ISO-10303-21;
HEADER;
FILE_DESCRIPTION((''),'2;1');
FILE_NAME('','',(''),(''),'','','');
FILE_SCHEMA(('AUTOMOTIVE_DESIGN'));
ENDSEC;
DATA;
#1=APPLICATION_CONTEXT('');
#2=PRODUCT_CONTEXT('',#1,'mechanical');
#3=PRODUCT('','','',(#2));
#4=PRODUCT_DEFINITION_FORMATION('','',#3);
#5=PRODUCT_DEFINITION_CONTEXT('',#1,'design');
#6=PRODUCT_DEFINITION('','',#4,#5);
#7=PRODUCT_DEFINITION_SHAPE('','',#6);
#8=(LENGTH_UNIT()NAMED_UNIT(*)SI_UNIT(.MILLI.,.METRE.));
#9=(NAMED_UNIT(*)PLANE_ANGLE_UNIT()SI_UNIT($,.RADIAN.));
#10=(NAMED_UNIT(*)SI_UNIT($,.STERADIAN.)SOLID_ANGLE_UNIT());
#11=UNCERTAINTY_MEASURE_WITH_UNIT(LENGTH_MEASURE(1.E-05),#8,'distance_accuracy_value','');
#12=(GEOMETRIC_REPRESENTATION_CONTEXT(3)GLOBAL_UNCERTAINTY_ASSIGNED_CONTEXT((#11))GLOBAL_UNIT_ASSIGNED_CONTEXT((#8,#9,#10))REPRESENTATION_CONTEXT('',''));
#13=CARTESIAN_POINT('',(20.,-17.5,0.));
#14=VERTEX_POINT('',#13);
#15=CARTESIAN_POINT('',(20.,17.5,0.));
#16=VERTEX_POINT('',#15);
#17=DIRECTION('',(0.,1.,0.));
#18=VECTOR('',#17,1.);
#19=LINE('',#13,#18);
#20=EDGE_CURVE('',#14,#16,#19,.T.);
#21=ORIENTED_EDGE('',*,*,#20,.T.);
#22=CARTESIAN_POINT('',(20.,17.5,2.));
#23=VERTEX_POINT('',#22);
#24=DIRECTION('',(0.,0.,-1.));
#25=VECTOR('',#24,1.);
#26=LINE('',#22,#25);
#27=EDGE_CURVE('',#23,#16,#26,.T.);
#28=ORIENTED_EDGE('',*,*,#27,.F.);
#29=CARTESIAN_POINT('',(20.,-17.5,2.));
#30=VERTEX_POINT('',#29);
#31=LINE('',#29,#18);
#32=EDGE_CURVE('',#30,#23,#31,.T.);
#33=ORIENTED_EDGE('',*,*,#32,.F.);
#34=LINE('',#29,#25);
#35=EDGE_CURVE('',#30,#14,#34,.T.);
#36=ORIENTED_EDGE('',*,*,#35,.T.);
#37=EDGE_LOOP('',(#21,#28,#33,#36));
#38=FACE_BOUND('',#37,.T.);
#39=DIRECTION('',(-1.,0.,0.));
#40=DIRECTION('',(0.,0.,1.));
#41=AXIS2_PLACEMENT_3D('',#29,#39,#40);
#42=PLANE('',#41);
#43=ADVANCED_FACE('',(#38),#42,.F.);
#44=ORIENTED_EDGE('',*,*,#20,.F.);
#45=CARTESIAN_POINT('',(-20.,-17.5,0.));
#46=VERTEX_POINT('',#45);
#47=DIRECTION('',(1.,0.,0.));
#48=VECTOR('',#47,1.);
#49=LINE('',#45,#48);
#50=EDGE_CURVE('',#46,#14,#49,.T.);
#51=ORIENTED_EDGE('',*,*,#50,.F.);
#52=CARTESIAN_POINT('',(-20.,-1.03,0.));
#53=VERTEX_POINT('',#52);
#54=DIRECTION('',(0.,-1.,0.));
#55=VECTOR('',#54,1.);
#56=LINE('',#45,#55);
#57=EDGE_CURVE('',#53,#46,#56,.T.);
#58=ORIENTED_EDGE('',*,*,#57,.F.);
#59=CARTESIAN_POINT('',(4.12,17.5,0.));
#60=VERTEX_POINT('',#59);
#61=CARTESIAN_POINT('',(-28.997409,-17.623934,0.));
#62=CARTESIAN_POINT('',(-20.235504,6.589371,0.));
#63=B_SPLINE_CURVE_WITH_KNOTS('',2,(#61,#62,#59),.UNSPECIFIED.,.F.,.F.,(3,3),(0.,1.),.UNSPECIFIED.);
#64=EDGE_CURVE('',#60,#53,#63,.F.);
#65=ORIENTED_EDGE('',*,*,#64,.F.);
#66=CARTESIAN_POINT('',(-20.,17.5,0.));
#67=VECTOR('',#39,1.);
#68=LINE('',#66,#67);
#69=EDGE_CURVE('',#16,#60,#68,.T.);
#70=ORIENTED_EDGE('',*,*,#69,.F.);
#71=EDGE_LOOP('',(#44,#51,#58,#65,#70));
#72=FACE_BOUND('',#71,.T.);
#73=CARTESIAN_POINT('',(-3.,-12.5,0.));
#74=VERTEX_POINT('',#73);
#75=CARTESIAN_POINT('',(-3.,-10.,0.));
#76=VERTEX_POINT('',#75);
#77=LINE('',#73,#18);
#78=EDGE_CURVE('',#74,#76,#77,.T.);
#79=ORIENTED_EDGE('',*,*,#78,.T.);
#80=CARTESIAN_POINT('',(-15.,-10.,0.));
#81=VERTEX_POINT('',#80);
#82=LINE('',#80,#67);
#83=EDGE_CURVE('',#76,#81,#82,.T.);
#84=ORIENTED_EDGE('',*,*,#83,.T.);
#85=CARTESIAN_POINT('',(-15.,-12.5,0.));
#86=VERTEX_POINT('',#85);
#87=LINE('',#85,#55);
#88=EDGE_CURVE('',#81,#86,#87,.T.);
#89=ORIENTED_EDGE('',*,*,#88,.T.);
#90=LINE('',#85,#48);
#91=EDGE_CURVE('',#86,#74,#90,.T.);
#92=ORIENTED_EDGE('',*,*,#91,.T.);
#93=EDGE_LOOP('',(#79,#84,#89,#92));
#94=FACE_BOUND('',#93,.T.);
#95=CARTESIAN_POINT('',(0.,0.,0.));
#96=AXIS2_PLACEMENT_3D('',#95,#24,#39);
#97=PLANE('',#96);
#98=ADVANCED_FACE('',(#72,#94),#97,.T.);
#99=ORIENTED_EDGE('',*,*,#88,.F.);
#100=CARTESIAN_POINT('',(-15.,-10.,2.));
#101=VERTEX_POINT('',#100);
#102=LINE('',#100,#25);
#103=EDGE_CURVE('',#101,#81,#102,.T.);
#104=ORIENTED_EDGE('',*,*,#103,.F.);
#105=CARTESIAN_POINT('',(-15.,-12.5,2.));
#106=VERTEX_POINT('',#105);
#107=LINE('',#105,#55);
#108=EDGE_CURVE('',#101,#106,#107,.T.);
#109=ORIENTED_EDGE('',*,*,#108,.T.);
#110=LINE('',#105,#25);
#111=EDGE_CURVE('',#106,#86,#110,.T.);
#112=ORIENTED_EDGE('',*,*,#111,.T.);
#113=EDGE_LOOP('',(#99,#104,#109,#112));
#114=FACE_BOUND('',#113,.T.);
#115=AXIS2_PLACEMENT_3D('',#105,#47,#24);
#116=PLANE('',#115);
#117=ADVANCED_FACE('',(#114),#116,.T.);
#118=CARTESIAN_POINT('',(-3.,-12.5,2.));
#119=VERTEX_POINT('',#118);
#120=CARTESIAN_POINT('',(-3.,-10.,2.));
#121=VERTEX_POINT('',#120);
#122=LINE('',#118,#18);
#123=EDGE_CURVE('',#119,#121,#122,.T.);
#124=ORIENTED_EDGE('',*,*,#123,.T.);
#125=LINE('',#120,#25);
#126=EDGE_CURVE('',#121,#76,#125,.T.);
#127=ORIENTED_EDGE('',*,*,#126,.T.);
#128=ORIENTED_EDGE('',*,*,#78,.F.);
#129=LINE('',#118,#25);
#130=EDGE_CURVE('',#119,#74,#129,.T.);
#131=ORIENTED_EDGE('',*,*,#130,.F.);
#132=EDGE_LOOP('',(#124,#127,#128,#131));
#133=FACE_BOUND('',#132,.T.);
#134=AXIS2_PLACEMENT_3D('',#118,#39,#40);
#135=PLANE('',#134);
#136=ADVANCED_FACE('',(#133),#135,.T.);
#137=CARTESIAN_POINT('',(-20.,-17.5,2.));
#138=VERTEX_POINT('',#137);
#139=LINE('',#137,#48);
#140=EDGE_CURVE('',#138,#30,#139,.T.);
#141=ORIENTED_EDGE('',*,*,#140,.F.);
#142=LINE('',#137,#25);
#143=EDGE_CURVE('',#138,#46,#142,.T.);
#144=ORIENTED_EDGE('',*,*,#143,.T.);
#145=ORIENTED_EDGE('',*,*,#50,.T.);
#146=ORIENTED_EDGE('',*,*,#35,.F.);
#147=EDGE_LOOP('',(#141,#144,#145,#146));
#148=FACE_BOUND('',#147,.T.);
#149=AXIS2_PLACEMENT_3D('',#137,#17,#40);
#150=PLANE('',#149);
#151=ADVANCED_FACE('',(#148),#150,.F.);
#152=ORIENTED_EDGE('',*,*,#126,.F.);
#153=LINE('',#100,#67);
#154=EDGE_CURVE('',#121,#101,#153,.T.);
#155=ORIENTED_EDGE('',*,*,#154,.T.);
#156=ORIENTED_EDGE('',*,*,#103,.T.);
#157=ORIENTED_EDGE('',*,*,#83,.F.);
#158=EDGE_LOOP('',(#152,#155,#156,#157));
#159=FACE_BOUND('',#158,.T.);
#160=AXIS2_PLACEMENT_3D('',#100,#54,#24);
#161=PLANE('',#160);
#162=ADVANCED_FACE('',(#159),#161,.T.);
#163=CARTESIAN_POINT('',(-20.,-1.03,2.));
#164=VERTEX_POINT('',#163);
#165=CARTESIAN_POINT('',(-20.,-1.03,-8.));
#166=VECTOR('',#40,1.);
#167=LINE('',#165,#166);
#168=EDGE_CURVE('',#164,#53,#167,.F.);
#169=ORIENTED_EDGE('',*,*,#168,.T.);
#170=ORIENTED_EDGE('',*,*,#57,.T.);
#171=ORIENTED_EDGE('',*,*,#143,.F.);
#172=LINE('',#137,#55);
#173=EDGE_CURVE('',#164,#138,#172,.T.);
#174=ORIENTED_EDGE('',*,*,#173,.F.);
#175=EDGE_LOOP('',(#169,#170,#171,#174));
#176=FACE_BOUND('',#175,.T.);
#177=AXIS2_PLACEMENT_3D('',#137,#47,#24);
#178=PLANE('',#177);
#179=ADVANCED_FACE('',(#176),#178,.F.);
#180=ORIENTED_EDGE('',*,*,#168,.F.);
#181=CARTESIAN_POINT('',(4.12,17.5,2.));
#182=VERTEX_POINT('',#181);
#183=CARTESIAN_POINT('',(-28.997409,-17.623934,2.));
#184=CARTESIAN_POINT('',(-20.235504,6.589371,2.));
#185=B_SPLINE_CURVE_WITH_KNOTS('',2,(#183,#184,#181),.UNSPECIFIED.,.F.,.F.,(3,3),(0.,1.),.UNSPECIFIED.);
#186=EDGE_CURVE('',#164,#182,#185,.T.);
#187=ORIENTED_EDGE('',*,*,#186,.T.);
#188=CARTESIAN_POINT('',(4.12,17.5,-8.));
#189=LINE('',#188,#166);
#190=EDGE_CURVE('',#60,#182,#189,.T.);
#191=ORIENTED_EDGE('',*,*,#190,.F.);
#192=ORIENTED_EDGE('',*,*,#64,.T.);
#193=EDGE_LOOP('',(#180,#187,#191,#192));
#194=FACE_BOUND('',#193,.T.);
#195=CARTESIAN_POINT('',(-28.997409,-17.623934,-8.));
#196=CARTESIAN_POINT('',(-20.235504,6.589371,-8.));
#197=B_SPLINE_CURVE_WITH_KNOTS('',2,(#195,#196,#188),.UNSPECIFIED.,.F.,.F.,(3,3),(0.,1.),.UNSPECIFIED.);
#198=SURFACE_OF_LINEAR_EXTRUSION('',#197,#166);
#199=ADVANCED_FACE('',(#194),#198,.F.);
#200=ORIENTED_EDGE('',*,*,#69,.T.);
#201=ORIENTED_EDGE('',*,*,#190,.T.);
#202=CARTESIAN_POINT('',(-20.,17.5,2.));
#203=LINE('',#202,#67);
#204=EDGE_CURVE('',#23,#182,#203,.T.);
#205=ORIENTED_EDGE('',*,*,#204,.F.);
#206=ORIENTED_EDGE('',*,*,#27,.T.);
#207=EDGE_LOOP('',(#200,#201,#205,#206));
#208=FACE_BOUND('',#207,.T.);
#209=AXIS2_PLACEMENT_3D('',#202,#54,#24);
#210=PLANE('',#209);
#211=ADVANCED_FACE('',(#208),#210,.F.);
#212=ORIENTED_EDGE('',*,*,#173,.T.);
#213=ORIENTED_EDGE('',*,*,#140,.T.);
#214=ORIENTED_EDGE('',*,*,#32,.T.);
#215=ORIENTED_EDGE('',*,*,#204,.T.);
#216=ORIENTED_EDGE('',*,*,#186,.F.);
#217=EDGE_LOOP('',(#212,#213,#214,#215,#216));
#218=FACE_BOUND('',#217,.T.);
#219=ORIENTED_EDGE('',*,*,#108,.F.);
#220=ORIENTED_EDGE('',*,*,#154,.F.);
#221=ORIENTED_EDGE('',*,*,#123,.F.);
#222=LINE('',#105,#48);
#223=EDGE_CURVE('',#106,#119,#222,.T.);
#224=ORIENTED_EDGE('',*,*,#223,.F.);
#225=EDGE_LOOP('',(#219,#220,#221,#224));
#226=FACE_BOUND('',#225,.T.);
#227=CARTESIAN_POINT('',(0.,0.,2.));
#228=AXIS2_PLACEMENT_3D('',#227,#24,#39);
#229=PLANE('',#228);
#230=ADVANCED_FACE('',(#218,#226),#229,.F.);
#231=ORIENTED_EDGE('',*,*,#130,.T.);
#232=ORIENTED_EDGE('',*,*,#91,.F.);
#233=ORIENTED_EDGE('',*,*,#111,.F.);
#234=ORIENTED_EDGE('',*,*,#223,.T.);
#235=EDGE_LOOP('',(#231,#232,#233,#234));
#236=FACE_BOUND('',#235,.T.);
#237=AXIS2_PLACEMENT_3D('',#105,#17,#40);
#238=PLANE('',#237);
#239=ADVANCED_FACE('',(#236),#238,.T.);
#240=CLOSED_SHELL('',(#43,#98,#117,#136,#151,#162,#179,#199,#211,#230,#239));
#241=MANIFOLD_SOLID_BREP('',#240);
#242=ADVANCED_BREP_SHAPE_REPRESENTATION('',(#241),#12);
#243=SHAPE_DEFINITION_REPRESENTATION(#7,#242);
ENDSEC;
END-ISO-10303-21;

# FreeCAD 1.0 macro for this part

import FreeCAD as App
import Part
import Sketcher
from FreeCAD import Vector
Q = App.Units.Quantity


def add_polygon(sketch, points):
    """Adds a closed chain of lines whose ends are joined by coincident constraints."""
    first, n = sketch.GeometryCount, len(points)
    for a, b in zip(points, points[1:] + points[:1]):
        sketch.addGeometry(Part.LineSegment(App.Vector(*a, 0), App.Vector(*b, 0)), False)
    for i in range(n):
        sketch.addConstraint(Sketcher.Constraint("Coincident", first + i, 2, first + (i + 1) % n, 1))

doc = App.newDocument("Part")
params = doc.addObject("Spreadsheet::Sheet", "Params")
for row, (alias, value) in enumerate([
    ("sketch1_width", "40 mm"),
    ("sketch1_width2", "12 mm"),
    ("sketch1_height", "35 mm"),
    ("sketch1_height2", "2.5 mm"),
    ("pad1_length", "2 mm"),
    ("pocket1_length", "10 mm"),
], start=1):
    params.set(f"A{row}", alias)
    params.set(f"B{row}", "=" + value)
    params.setAlias(f"B{row}", alias)

body = doc.addObject("PartDesign::Body", "Body")

sketch1 = doc.addObject("Sketcher::SketchObject", "Sketch")
body.addObject(sketch1)
sketch1.AttachmentSupport = (doc.XY_Plane, [""])
sketch1.MapMode = "FlatFace"
add_polygon(sketch1, [(-20, 17.5), (-20, -17.5), (20, -17.5), (20, 17.5)])
add_polygon(sketch1, [(-3, -12.5), (-15, -12.5), (-15, -10), (-3, -10)])
sketch1.addConstraint([
    Sketcher.Constraint("Vertical", 0),
    Sketcher.Constraint("Horizontal", 1),
    Sketcher.Constraint("Vertical", 2),
    Sketcher.Constraint("Horizontal", 3),
    Sketcher.Constraint("Horizontal", 4),
    Sketcher.Constraint("Vertical", 5),
    Sketcher.Constraint("Horizontal", 6),
    Sketcher.Constraint("Vertical", 7),
    Sketcher.Constraint("Symmetric", 0, 2, 2, 2, -1, 1),
    Sketcher.Constraint("DistanceX", 1, 1, 1, 2, Q("40 mm")),
    Sketcher.Constraint("DistanceX", 4, 2, 4, 1, Q("12 mm")),
    Sketcher.Constraint("DistanceY", 0, 2, 0, 1, Q("35 mm")),
    Sketcher.Constraint("DistanceY", 5, 1, 5, 2, Q("2.5 mm")),
    Sketcher.Constraint("DistanceX", 4, 2, -1, 1, Q("15 mm")),
    Sketcher.Constraint("DistanceY", 5, 2, -1, 1, Q("10 mm")),
])
sketch1.setExpression("Constraints[17]", "Params.sketch1_width")
sketch1.setExpression("Constraints[18]", "Params.sketch1_width2")
sketch1.setExpression("Constraints[19]", "Params.sketch1_height")
sketch1.setExpression("Constraints[20]", "Params.sketch1_height2")
pad1 = doc.addObject("PartDesign::Pad", "Pad")
body.addObject(pad1)
pad1.Profile = sketch1
pad1.setExpression("Length", "Params.pad1_length")

sketch2 = doc.addObject("Sketcher::SketchObject", "Sketch001")
body.addObject(sketch2)
sketch2.AttachmentSupport = (doc.XY_Plane, [""])
sketch2.MapMode = "FlatFace"
sketch2.AttachmentOffset = App.Placement(Vector(0, 0, 2), App.Rotation())
sketch2.addGeometry([
    Part.LineSegment(Vector(-30.265364, 23.868234, 0), Vector(-28.997409, -17.623934, 0)),
    Part.BSplineCurve([Vector(4.12, 17.5, 0), Vector(-20.235504, 6.589371, 0), Vector(-28.997409, -17.623934, 0)], [3, 3], [0, 1], False, 2, [1, 1, 1], False),
    Part.LineSegment(Vector(4.12, 17.5, 0), Vector(-30.265364, 23.868234, 0)),
], False)
sketch2.addConstraint([
    Sketcher.Constraint("Block", 1),
    Sketcher.Constraint("Coincident", 0, 2, 1, 2),
    Sketcher.Constraint("Coincident", 1, 1, 2, 1),
    Sketcher.Constraint("Coincident", 2, 2, 0, 1),
    Sketcher.Constraint("DistanceY", 0, 2, 2, 2, Q("41.492168 mm")),
    Sketcher.Constraint("Distance", 0, Q("41.511537 mm")),
])
pocket1 = doc.addObject("PartDesign::Pocket", "Pocket")
body.addObject(pocket1)
pocket1.Profile = sketch2
pocket1.setExpression("Length", "Params.pocket1_length")

doc.recompute()
